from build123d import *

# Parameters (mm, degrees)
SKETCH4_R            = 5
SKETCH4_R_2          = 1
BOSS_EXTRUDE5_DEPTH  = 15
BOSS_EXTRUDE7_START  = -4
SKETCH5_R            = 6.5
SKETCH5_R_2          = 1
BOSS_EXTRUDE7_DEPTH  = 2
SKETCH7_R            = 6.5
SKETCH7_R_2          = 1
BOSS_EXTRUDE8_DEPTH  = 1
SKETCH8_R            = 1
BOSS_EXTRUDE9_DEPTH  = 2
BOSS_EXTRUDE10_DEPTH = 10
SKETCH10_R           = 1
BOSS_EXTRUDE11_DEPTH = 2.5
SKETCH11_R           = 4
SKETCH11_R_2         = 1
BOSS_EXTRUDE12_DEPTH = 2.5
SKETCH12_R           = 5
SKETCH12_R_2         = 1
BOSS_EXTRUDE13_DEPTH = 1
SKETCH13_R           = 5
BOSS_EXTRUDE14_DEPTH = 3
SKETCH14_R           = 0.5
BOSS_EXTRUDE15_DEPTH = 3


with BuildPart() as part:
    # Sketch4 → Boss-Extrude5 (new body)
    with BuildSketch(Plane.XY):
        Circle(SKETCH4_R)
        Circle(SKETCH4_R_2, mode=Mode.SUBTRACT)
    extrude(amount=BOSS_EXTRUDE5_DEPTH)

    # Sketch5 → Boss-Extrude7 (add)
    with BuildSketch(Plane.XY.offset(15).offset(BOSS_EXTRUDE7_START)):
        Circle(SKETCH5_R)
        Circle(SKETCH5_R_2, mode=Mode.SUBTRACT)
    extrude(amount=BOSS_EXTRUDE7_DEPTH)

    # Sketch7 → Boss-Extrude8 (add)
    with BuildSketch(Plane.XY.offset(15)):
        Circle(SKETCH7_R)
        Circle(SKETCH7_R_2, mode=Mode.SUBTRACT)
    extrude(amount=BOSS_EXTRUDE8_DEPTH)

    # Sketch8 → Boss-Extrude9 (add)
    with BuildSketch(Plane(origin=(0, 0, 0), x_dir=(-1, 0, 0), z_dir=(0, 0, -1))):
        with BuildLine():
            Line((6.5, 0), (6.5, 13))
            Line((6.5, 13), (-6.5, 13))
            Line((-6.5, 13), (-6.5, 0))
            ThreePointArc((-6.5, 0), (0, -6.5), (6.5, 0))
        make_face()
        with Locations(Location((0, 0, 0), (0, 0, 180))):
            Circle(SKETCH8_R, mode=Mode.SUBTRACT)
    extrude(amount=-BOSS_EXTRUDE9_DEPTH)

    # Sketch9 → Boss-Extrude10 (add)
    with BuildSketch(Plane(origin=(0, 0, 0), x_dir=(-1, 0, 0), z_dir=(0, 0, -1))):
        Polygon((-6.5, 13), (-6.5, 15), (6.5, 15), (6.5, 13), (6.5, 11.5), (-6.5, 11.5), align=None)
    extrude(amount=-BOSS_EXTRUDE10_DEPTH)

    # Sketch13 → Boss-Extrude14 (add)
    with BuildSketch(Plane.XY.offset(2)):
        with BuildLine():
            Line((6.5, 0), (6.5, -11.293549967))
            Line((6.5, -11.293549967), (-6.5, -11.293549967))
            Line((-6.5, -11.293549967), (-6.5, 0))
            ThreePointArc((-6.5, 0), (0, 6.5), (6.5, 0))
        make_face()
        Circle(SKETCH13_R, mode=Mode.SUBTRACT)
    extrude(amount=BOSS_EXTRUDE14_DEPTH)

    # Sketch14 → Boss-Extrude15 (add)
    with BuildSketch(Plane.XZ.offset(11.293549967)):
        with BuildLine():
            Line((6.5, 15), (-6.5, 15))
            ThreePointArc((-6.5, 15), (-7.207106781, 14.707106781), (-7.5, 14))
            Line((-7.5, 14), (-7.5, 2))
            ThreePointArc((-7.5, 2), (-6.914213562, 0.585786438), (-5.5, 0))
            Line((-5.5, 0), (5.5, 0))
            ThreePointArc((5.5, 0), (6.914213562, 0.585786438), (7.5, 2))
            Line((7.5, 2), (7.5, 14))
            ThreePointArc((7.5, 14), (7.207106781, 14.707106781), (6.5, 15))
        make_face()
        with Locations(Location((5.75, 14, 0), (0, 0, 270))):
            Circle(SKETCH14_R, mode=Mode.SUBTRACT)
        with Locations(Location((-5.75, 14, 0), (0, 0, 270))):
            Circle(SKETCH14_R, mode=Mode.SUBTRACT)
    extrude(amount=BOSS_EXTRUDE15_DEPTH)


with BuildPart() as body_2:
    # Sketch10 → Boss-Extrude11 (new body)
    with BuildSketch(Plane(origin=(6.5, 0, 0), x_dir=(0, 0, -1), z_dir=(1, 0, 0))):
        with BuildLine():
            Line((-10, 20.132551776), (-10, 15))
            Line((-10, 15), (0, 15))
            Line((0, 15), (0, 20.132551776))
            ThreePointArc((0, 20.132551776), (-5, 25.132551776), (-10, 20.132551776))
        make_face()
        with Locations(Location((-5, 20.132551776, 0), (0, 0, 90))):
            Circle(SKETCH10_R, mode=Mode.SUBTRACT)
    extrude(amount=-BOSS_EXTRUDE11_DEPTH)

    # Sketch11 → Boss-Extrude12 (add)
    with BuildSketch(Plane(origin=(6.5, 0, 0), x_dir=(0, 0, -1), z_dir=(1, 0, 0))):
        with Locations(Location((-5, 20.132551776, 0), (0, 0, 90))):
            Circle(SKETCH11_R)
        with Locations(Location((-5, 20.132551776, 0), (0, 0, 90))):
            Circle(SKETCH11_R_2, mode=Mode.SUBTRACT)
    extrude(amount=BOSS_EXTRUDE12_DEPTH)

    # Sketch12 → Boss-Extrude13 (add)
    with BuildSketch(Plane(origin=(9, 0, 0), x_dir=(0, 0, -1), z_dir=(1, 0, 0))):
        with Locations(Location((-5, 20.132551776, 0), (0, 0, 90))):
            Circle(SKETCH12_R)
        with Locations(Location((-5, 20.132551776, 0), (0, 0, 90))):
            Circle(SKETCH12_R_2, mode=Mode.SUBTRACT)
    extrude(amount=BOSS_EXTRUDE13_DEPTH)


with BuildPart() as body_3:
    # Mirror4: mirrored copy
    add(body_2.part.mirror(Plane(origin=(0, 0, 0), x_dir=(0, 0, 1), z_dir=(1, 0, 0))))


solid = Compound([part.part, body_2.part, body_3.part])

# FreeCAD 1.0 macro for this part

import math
import FreeCAD as App
import Part
import Sketcher
from FreeCAD import Vector


def add_polygon(sketch, points):
    """Adds a closed chain of lines whose ends are joined by coincident constraints."""
    first, n = sketch.GeometryCount, len(points)
    for a, b in zip(points, points[1:] + points[:1]):
        sketch.addGeometry(Part.LineSegment(App.Vector(*a, 0), App.Vector(*b, 0)), False)
    for i in range(n):
        sketch.addConstraint(Sketcher.Constraint("Coincident", first + i, 2, first + (i + 1) % n, 1))

doc = App.newDocument("Part")
body = doc.addObject("PartDesign::Body", "Body")

sketch1 = body.newObject("Sketcher::SketchObject", "Sketch")
sketch1.AttachmentSupport = (doc.getObject("XY_Plane"), [""])
sketch1.MapMode = "FlatFace"
sketch1.addGeometry([
    Part.Circle(Vector(0, 0, 0), Vector(0, 0, 1), 5),
    Part.Circle(Vector(0, 0, 0), Vector(0, 0, 1), 1),
], False)
sketch1.addConstraint([
    Sketcher.Constraint("Coincident", 0, 3, -1, 1),
    Sketcher.Constraint("Coincident", 1, 3, -1, 1),
    Sketcher.Constraint("Diameter", 0, 10.0),
    Sketcher.Constraint("Diameter", 1, 2.0),
])
pad1 = body.newObject("PartDesign::Pad", "Pad")
pad1.Profile = sketch1
pad1.Length = 15

sketch2 = body.newObject("Sketcher::SketchObject", "Sketch001")
sketch2.AttachmentSupport = (doc.getObject("XY_Plane"), [""])
sketch2.MapMode = "FlatFace"
sketch2.AttachmentOffset = App.Placement(Vector(0, 0, 11), App.Rotation())
sketch2.addGeometry([
    Part.Circle(Vector(0, 0, 0), Vector(0, 0, 1), 6.5),
    Part.Circle(Vector(0, 0, 0), Vector(0, 0, 1), 1),
], False)
sketch2.addConstraint([
    Sketcher.Constraint("Coincident", 0, 3, -1, 1),
    Sketcher.Constraint("Coincident", 1, 3, -1, 1),
    Sketcher.Constraint("Diameter", 0, 13.0),
    Sketcher.Constraint("Diameter", 1, 2.0),
])
pad2 = body.newObject("PartDesign::Pad", "Pad001")
pad2.Profile = sketch2
pad2.Length = 2

sketch3 = body.newObject("Sketcher::SketchObject", "Sketch002")
sketch3.AttachmentSupport = (doc.getObject("XY_Plane"), [""])
sketch3.MapMode = "FlatFace"
sketch3.AttachmentOffset = App.Placement(Vector(0, 0, 15), App.Rotation())
sketch3.addGeometry([
    Part.Circle(Vector(0, 0, 0), Vector(0, 0, 1), 6.5),
    Part.Circle(Vector(0, 0, 0), Vector(0, 0, 1), 1),
], False)
sketch3.addConstraint([
    Sketcher.Constraint("Coincident", 0, 3, -1, 1),
    Sketcher.Constraint("Coincident", 1, 3, -1, 1),
    Sketcher.Constraint("Diameter", 0, 13.0),
    Sketcher.Constraint("Diameter", 1, 2.0),
])
pad3 = body.newObject("PartDesign::Pad", "Pad002")
pad3.Profile = sketch3
pad3.Length = 1

sketch4 = body.newObject("Sketcher::SketchObject", "Sketch003")
sketch4.AttachmentSupport = (doc.getObject("XY_Plane"), [""])
sketch4.MapMode = "FlatFace"
sketch4.addGeometry([
    Part.LineSegment(Vector(-6.5, 0, 0), Vector(-6.5, 13, 0)),
    Part.LineSegment(Vector(-6.5, 13, 0), Vector(6.5, 13, 0)),
    Part.LineSegment(Vector(6.5, 13, 0), Vector(6.5, 0, 0)),
    Part.ArcOfCircle(Part.Circle(Vector(0, 0, 0), Vector(0, 0, 1), 6.5), math.radians(180), math.radians(360)),
    Part.Circle(Vector(0, 0, 0), Vector(0, 0, 1), 1),
], False)
sketch4.addConstraint([
    Sketcher.Constraint("Coincident", 0, 2, 1, 1),
    Sketcher.Constraint("Coincident", 1, 2, 2, 1),
    Sketcher.Constraint("Tangent", 2, 2, 3, 2),
    Sketcher.Constraint("Tangent", 3, 1, 0, 1),
    Sketcher.Constraint("Vertical", 0),
    Sketcher.Constraint("Horizontal", 1),
    Sketcher.Constraint("Vertical", 2),
    Sketcher.Constraint("Coincident", 3, 3, -1, 1),
    Sketcher.Constraint("Coincident", 4, 3, -1, 1),
    Sketcher.Constraint("Equal", 1, 0),
    Sketcher.Constraint("Diameter", 4, 2.0),
    Sketcher.Constraint("Radius", 3, 6.5),
])
pad4 = body.newObject("PartDesign::Pad", "Pad003")
pad4.Profile = sketch4
pad4.Length = 2

sketch5 = body.newObject("Sketcher::SketchObject", "Sketch004")
sketch5.AttachmentSupport = (doc.getObject("XY_Plane"), [""])
sketch5.MapMode = "FlatFace"
add_polygon(sketch5, [(6.5, 15), (6.5, 11.5), (-6.5, 11.5), (-6.5, 15)])
sketch5.addConstraint([
    Sketcher.Constraint("Vertical", 0),
    Sketcher.Constraint("Horizontal", 1),
    Sketcher.Constraint("Vertical", 2),
    Sketcher.Constraint("Horizontal", 3),
    Sketcher.Constraint("DistanceX", 1, 2, 1, 1, 13.0),
    Sketcher.Constraint("DistanceY", 0, 2, 0, 1, 3.5),
    Sketcher.Constraint("DistanceY", -1, 1, 2, 2, 15.0),
    Sketcher.Constraint("DistanceX", -1, 1, 0, 2, 6.5),
])
pad5 = body.newObject("PartDesign::Pad", "Pad004")
pad5.Profile = sketch5
pad5.Length = 10

sketch6 = body.newObject("Sketcher::SketchObject", "Sketch005")
sketch6.AttachmentSupport = (doc.getObject("XY_Plane"), [""])
sketch6.MapMode = "FlatFace"
sketch6.AttachmentOffset = App.Placement(Vector(0, 0, 2), App.Rotation())
sketch6.addGeometry([
    Part.LineSegment(Vector(6.5, -11.29355, 0), Vector(6.5, 0, 0)),
    Part.ArcOfCircle(Part.Circle(Vector(0, 0, 0), Vector(0, 0, 1), 6.5), math.radians(0), math.radians(180)),
    Part.LineSegment(Vector(-6.5, 0, 0), Vector(-6.5, -11.29355, 0)),
    Part.LineSegment(Vector(-6.5, -11.29355, 0), Vector(6.5, -11.29355, 0)),
    Part.Circle(Vector(0, 0, 0), Vector(0, 0, 1), 5),
], False)
sketch6.addConstraint([
    Sketcher.Constraint("Tangent", 0, 2, 1, 1),
    Sketcher.Constraint("Tangent", 1, 2, 2, 1),
    Sketcher.Constraint("Coincident", 2, 2, 3, 1),
    Sketcher.Constraint("Coincident", 3, 2, 0, 1),
    Sketcher.Constraint("Vertical", 0),
    Sketcher.Constraint("Vertical", 2),
    Sketcher.Constraint("Horizontal", 3),
    Sketcher.Constraint("Coincident", 1, 3, -1, 1),
    Sketcher.Constraint("Coincident", 4, 3, -1, 1),
    Sketcher.Constraint("Diameter", 4, 10.0),
    Sketcher.Constraint("Radius", 1, 6.5),
    Sketcher.Constraint("DistanceY", 0, 1, 0, 2, 11.29355),
])
pad6 = body.newObject("PartDesign::Pad", "Pad005")
pad6.Profile = sketch6
pad6.Length = 3

sketch7 = body.newObject("Sketcher::SketchObject", "Sketch006")
sketch7.AttachmentSupport = (doc.getObject("XZ_Plane"), [""])
sketch7.MapMode = "FlatFace"
sketch7.AttachmentOffset = App.Placement(Vector(0, 0, 11.29355), App.Rotation())
sketch7.addGeometry([
    Part.LineSegment(Vector(6.5, 15, 0), Vector(-6.5, 15, 0)),
    Part.ArcOfCircle(Part.Circle(Vector(-6.5, 14, 0), Vector(0, 0, 1), 1), math.radians(90), math.radians(180)),
    Part.LineSegment(Vector(-7.5, 14, 0), Vector(-7.5, 2, 0)),
    Part.ArcOfCircle(Part.Circle(Vector(-5.5, 2, 0), Vector(0, 0, 1), 2), math.radians(-180), math.radians(-90)),
    Part.LineSegment(Vector(-5.5, 0, 0), Vector(5.5, 0, 0)),
    Part.ArcOfCircle(Part.Circle(Vector(5.5, 2, 0), Vector(0, 0, 1), 2), math.radians(-90), math.radians(0)),
    Part.LineSegment(Vector(7.5, 2, 0), Vector(7.5, 14, 0)),
    Part.ArcOfCircle(Part.Circle(Vector(6.5, 14, 0), Vector(0, 0, 1), 1), math.radians(0), math.radians(90)),
    Part.Circle(Vector(-5.75, 14, 0), Vector(0, 0, 1), 0.5),
    Part.Circle(Vector(5.75, 14, 0), Vector(0, 0, 1), 0.5),
], False)
sketch7.addConstraint([
    Sketcher.Constraint("Tangent", 0, 2, 1, 1),
    Sketcher.Constraint("Tangent", 1, 2, 2, 1),
    Sketcher.Constraint("Tangent", 2, 2, 3, 1),
    Sketcher.Constraint("Tangent", 3, 2, 4, 1),
    Sketcher.Constraint("Tangent", 4, 2, 5, 1),
    Sketcher.Constraint("Tangent", 5, 2, 6, 1),
    Sketcher.Constraint("Tangent", 6, 2, 7, 1),
    Sketcher.Constraint("Tangent", 7, 2, 0, 1),
    Sketcher.Constraint("Horizontal", 0),
    Sketcher.Constraint("Vertical", 2),
    Sketcher.Constraint("Horizontal", 4),
    Sketcher.Constraint("Vertical", 6),
    Sketcher.Constraint("Equal", 3, 5),
    Sketcher.Constraint("Equal", 1, 7),
    Sketcher.Constraint("Equal", 8, 9),
    Sketcher.Constraint("Symmetric", 3, 2, 4, 2, -1, 1),
    Sketcher.Constraint("Symmetric", 8, 3, 9, 3, -2),
    Sketcher.Constraint("Horizontal", 7, 3, 8, 3),
    Sketcher.Constraint("Diameter", 8, 1.0),
    Sketcher.Constraint("Radius", 1, 1.0),
    Sketcher.Constraint("Radius", 3, 2.0),
    Sketcher.Constraint("DistanceX", 0, 2, 0, 1, 13.0),
    Sketcher.Constraint("DistanceY", 2, 2, 2, 1, 12.0),
    Sketcher.Constraint("DistanceX", 8, 3, 9, 3, 11.5),
])
pad7 = body.newObject("PartDesign::Pad", "Pad006")
pad7.Profile = sketch7
pad7.Length = 3
body2 = doc.addObject("PartDesign::Body", "Body001")

sketch8 = body2.newObject("Sketcher::SketchObject", "Sketch007")
sketch8.AttachmentSupport = (doc.getObject("YZ_Plane001"), [""])
sketch8.MapMode = "FlatFace"
sketch8.AttachmentOffset = App.Placement(Vector(0, 0, 6.5), App.Rotation())
sketch8.addGeometry([
    Part.LineSegment(Vector(20.132552, 10, 0), Vector(15, 10, 0)),
    Part.LineSegment(Vector(15, 10, 0), Vector(15, 0, 0)),
    Part.LineSegment(Vector(15, 0, 0), Vector(20.132552, 0, 0)),
    Part.ArcOfCircle(Part.Circle(Vector(20.132552, 5, 0), Vector(0, 0, 1), 5), math.radians(-90), math.radians(90)),
    Part.Circle(Vector(20.132552, 5, 0), Vector(0, 0, 1), 1),
], False)
sketch8.addConstraint([
    Sketcher.Constraint("Coincident", 0, 2, 1, 1),
    Sketcher.Constraint("Coincident", 1, 2, 2, 1),
    Sketcher.Constraint("Tangent", 2, 2, 3, 1),
    Sketcher.Constraint("Tangent", 3, 2, 0, 1),
    Sketcher.Constraint("Horizontal", 0),
    Sketcher.Constraint("Vertical", 1),
    Sketcher.Constraint("Horizontal", 2),
    Sketcher.Constraint("Coincident", 4, 3, 3, 3),
    Sketcher.Constraint("PointOnObject", 1, 2, -1),
    Sketcher.Constraint("Diameter", 4, 2.0),
    Sketcher.Constraint("Radius", 3, 5.0),
    Sketcher.Constraint("DistanceX", -1, 1, 0, 2, 15.0),
    Sketcher.Constraint("DistanceX", 0, 2, 0, 1, 5.132552),
])
pad8 = body2.newObject("PartDesign::Pad", "Pad007")
pad8.Profile = sketch8
pad8.Length = 2.5
pad8.Reversed = True

sketch9 = body2.newObject("Sketcher::SketchObject", "Sketch008")
sketch9.AttachmentSupport = (doc.getObject("YZ_Plane001"), [""])
sketch9.MapMode = "FlatFace"
sketch9.AttachmentOffset = App.Placement(Vector(0, 0, 6.5), App.Rotation())
sketch9.addGeometry([
    Part.Circle(Vector(20.132552, 5, 0), Vector(0, 0, 1), 4),
    Part.Circle(Vector(20.132552, 5, 0), Vector(0, 0, 1), 1),
], False)
sketch9.addConstraint([
    Sketcher.Constraint("Coincident", 1, 3, 0, 3),
    Sketcher.Constraint("Diameter", 0, 8.0),
    Sketcher.Constraint("Diameter", 1, 2.0),
    Sketcher.Constraint("DistanceY", -1, 1, 0, 3, 5.0),
    Sketcher.Constraint("DistanceX", -1, 1, 0, 3, 20.132552),
])
pad9 = body2.newObject("PartDesign::Pad", "Pad008")
pad9.Profile = sketch9
pad9.Length = 2.5

sketch10 = body2.newObject("Sketcher::SketchObject", "Sketch009")
sketch10.AttachmentSupport = (doc.getObject("YZ_Plane001"), [""])
sketch10.MapMode = "FlatFace"
sketch10.AttachmentOffset = App.Placement(Vector(0, 0, 9), App.Rotation())
sketch10.addGeometry([
    Part.Circle(Vector(20.132552, 5, 0), Vector(0, 0, 1), 5),
    Part.Circle(Vector(20.132552, 5, 0), Vector(0, 0, 1), 1),
], False)
sketch10.addConstraint([
    Sketcher.Constraint("Coincident", 1, 3, 0, 3),
    Sketcher.Constraint("Diameter", 0, 10.0),
    Sketcher.Constraint("Diameter", 1, 2.0),
    Sketcher.Constraint("DistanceY", -1, 1, 0, 3, 5.0),
    Sketcher.Constraint("DistanceX", -1, 1, 0, 3, 20.132552),
])
pad10 = body2.newObject("PartDesign::Pad", "Pad009")
pad10.Profile = sketch10
pad10.Length = 1
body3 = doc.addObject("PartDesign::Body", "Body002")
doc.recompute()

mirroring = doc.addObject("Part::Mirroring", "Mirroring")
mirroring.Source = body2
mirroring.Base = Vector(0, 0, 0)
mirroring.Normal = Vector(1, 0, 0)
body3.BaseFeature = mirroring
doc.recompute()
mirroring.Visibility = False

doc.recompute()
